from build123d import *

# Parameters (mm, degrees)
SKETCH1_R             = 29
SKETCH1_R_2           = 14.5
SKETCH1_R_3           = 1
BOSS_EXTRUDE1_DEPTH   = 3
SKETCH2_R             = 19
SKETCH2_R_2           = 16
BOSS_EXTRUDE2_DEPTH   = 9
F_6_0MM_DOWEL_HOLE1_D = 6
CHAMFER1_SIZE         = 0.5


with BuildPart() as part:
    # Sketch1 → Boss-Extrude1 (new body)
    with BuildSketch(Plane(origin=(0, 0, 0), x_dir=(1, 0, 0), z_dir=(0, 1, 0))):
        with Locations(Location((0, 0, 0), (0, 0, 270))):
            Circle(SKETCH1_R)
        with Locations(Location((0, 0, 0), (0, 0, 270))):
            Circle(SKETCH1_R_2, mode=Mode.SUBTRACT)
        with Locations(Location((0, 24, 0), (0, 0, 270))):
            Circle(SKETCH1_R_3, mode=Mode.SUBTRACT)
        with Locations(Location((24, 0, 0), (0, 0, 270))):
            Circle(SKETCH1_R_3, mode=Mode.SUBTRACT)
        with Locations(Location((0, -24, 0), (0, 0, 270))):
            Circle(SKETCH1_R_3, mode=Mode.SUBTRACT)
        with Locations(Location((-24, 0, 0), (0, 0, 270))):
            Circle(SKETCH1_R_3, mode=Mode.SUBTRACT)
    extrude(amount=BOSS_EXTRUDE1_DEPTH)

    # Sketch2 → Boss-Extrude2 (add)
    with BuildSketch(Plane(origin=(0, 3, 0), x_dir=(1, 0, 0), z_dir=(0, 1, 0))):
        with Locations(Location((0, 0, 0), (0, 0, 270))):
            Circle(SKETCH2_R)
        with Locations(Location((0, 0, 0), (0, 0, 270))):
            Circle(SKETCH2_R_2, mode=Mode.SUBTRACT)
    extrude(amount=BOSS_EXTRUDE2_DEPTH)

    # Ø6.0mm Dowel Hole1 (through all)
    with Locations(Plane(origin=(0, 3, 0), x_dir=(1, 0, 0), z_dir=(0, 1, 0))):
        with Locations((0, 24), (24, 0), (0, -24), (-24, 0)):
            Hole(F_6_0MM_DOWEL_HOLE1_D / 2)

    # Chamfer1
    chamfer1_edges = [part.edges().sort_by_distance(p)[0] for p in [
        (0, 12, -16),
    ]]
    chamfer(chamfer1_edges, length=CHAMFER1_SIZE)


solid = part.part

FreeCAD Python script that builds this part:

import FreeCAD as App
import Part
import Sketcher
Q = App.Units.Quantity


def edges_at(feature, points):
    """Names of the edges that pass closest to the given points."""
    edges = feature.Shape.Edges
    near = lambda p: min(range(len(edges)), key=lambda i: edges[i].distToShape(Part.Vertex(*p))[0])
    return sorted({f"Edge{near(p) + 1}" for p in points})

doc = App.newDocument("Part")
body = doc.addObject("PartDesign::Body", "Body")

# Sketch on XZ plane
sketch1 = body.newObject("Sketcher::SketchObject", "Sketch")
sketch1.AttachmentSupport = (doc.getObject("XZ_Plane"), [""])
sketch1.MapMode = "FlatFace"
sketch1.addGeometry([
    Part.Circle(App.Vector(0, 0, 0), App.Vector(0, 0, 1), 29),  # 0
    Part.Circle(App.Vector(0, -24, 0), App.Vector(0, 0, 1), 1),  # 1
    Part.Circle(App.Vector(-24, 0, 0), App.Vector(0, 0, 1), 1),  # 2
    Part.Circle(App.Vector(24, 0, 0), App.Vector(0, 0, 1), 1),  # 3
    Part.Circle(App.Vector(0, 0, 0), App.Vector(0, 0, 1), 14.5),  # 4
    Part.Circle(App.Vector(0, 24, 0), App.Vector(0, 0, 1), 1),  # 5
], False)
sketch1.addConstraint([
    Sketcher.Constraint("Coincident", 0, 3, -1, 1),
    Sketcher.Constraint("Coincident", 4, 3, -1, 1),
    Sketcher.Constraint("Equal", 1, 2),
    Sketcher.Constraint("Equal", 2, 3),
    Sketcher.Constraint("Equal", 3, 5),
    Sketcher.Constraint("Symmetric", 2, 3, 3, 3, -1, 1),
    Sketcher.Constraint("Symmetric", 1, 3, 5, 3, -1, 1),
    Sketcher.Constraint("PointOnObject", 1, 3, -2),
    Sketcher.Constraint("PointOnObject", 2, 3, -1),
    Sketcher.Constraint("Diameter", 0, Q("58 mm")),
    Sketcher.Constraint("Diameter", 1, Q("2 mm")),
    Sketcher.Constraint("Diameter", 4, Q("29 mm")),
    Sketcher.Constraint("DistanceY", 1, 3, -1, 1, Q("24 mm")),
    Sketcher.Constraint("DistanceX", 2, 3, -1, 1, Q("24 mm")),
])
pad1 = body.newObject("PartDesign::Pad", "Pad")
pad1.Profile = sketch1
pad1.Length = 3
pad1.Reversed = True

# Sketch on XZ plane
sketch2 = body.newObject("Sketcher::SketchObject", "Sketch001")
sketch2.AttachmentSupport = (doc.getObject("XZ_Plane"), [""])
sketch2.MapMode = "FlatFace"
sketch2.AttachmentOffset = App.Placement(App.Vector(0, 0, -3), App.Rotation())
sketch2.addGeometry([
    Part.Circle(App.Vector(0, 0, 0), App.Vector(0, 0, 1), 19),
    Part.Circle(App.Vector(0, 0, 0), App.Vector(0, 0, 1), 16),
], False)
sketch2.addConstraint([
    Sketcher.Constraint("Coincident", 0, 3, -1, 1),
    Sketcher.Constraint("Coincident", 1, 3, -1, 1),
    Sketcher.Constraint("Diameter", 0, Q("38 mm")),
    Sketcher.Constraint("Diameter", 1, Q("32 mm")),
])
pad2 = body.newObject("PartDesign::Pad", "Pad001")
pad2.Profile = sketch2
pad2.Length = 9
pad2.Reversed = True

# Sketch on XZ plane
sketch3 = body.newObject("Sketcher::SketchObject", "Sketch002")
sketch3.AttachmentSupport = (doc.getObject("XZ_Plane"), [""])
sketch3.MapMode = "FlatFace"
sketch3.AttachmentOffset = App.Placement(App.Vector(0, 0, -3), App.Rotation())
sketch3.addGeometry([
    Part.Circle(App.Vector(0, -24, 0), App.Vector(0, 0, 1), 3),
    Part.Circle(App.Vector(24, 0, 0), App.Vector(0, 0, 1), 3),
    Part.Circle(App.Vector(0, 24, 0), App.Vector(0, 0, 1), 3),
    Part.Circle(App.Vector(-24, 0, 0), App.Vector(0, 0, 1), 3),
], False)
sketch3.addConstraint([
    Sketcher.Constraint("Equal", 0, 1),
    Sketcher.Constraint("Equal", 1, 2),
    Sketcher.Constraint("Equal", 2, 3),
    Sketcher.Constraint("Symmetric", 0, 3, 2, 3, -1, 1),
    Sketcher.Constraint("Symmetric", 1, 3, 3, 3, -1, 1),
    Sketcher.Constraint("PointOnObject", 0, 3, -2),
    Sketcher.Constraint("PointOnObject", 1, 3, -1),
    Sketcher.Constraint("Diameter", 0, Q("6 mm")),
    Sketcher.Constraint("DistanceY", 0, 3, -1, 1, Q("24 mm")),
    Sketcher.Constraint("DistanceX", -1, 1, 1, 3, Q("24 mm")),
])
doc.recompute()
hole = body.newObject("PartDesign::Hole", "Hole")
hole.Profile = sketch3
hole.ThreadType = "None"
hole.Diameter = 6
hole.DepthType = "ThroughAll"
hole.Reversed = True
doc.recompute()

chamfer = body.newObject("PartDesign::Chamfer", "Chamfer")
chamfer.Base = (hole, edges_at(hole, [(0, 12, -16)]))
chamfer.Size = 0.5

doc.recompute()
